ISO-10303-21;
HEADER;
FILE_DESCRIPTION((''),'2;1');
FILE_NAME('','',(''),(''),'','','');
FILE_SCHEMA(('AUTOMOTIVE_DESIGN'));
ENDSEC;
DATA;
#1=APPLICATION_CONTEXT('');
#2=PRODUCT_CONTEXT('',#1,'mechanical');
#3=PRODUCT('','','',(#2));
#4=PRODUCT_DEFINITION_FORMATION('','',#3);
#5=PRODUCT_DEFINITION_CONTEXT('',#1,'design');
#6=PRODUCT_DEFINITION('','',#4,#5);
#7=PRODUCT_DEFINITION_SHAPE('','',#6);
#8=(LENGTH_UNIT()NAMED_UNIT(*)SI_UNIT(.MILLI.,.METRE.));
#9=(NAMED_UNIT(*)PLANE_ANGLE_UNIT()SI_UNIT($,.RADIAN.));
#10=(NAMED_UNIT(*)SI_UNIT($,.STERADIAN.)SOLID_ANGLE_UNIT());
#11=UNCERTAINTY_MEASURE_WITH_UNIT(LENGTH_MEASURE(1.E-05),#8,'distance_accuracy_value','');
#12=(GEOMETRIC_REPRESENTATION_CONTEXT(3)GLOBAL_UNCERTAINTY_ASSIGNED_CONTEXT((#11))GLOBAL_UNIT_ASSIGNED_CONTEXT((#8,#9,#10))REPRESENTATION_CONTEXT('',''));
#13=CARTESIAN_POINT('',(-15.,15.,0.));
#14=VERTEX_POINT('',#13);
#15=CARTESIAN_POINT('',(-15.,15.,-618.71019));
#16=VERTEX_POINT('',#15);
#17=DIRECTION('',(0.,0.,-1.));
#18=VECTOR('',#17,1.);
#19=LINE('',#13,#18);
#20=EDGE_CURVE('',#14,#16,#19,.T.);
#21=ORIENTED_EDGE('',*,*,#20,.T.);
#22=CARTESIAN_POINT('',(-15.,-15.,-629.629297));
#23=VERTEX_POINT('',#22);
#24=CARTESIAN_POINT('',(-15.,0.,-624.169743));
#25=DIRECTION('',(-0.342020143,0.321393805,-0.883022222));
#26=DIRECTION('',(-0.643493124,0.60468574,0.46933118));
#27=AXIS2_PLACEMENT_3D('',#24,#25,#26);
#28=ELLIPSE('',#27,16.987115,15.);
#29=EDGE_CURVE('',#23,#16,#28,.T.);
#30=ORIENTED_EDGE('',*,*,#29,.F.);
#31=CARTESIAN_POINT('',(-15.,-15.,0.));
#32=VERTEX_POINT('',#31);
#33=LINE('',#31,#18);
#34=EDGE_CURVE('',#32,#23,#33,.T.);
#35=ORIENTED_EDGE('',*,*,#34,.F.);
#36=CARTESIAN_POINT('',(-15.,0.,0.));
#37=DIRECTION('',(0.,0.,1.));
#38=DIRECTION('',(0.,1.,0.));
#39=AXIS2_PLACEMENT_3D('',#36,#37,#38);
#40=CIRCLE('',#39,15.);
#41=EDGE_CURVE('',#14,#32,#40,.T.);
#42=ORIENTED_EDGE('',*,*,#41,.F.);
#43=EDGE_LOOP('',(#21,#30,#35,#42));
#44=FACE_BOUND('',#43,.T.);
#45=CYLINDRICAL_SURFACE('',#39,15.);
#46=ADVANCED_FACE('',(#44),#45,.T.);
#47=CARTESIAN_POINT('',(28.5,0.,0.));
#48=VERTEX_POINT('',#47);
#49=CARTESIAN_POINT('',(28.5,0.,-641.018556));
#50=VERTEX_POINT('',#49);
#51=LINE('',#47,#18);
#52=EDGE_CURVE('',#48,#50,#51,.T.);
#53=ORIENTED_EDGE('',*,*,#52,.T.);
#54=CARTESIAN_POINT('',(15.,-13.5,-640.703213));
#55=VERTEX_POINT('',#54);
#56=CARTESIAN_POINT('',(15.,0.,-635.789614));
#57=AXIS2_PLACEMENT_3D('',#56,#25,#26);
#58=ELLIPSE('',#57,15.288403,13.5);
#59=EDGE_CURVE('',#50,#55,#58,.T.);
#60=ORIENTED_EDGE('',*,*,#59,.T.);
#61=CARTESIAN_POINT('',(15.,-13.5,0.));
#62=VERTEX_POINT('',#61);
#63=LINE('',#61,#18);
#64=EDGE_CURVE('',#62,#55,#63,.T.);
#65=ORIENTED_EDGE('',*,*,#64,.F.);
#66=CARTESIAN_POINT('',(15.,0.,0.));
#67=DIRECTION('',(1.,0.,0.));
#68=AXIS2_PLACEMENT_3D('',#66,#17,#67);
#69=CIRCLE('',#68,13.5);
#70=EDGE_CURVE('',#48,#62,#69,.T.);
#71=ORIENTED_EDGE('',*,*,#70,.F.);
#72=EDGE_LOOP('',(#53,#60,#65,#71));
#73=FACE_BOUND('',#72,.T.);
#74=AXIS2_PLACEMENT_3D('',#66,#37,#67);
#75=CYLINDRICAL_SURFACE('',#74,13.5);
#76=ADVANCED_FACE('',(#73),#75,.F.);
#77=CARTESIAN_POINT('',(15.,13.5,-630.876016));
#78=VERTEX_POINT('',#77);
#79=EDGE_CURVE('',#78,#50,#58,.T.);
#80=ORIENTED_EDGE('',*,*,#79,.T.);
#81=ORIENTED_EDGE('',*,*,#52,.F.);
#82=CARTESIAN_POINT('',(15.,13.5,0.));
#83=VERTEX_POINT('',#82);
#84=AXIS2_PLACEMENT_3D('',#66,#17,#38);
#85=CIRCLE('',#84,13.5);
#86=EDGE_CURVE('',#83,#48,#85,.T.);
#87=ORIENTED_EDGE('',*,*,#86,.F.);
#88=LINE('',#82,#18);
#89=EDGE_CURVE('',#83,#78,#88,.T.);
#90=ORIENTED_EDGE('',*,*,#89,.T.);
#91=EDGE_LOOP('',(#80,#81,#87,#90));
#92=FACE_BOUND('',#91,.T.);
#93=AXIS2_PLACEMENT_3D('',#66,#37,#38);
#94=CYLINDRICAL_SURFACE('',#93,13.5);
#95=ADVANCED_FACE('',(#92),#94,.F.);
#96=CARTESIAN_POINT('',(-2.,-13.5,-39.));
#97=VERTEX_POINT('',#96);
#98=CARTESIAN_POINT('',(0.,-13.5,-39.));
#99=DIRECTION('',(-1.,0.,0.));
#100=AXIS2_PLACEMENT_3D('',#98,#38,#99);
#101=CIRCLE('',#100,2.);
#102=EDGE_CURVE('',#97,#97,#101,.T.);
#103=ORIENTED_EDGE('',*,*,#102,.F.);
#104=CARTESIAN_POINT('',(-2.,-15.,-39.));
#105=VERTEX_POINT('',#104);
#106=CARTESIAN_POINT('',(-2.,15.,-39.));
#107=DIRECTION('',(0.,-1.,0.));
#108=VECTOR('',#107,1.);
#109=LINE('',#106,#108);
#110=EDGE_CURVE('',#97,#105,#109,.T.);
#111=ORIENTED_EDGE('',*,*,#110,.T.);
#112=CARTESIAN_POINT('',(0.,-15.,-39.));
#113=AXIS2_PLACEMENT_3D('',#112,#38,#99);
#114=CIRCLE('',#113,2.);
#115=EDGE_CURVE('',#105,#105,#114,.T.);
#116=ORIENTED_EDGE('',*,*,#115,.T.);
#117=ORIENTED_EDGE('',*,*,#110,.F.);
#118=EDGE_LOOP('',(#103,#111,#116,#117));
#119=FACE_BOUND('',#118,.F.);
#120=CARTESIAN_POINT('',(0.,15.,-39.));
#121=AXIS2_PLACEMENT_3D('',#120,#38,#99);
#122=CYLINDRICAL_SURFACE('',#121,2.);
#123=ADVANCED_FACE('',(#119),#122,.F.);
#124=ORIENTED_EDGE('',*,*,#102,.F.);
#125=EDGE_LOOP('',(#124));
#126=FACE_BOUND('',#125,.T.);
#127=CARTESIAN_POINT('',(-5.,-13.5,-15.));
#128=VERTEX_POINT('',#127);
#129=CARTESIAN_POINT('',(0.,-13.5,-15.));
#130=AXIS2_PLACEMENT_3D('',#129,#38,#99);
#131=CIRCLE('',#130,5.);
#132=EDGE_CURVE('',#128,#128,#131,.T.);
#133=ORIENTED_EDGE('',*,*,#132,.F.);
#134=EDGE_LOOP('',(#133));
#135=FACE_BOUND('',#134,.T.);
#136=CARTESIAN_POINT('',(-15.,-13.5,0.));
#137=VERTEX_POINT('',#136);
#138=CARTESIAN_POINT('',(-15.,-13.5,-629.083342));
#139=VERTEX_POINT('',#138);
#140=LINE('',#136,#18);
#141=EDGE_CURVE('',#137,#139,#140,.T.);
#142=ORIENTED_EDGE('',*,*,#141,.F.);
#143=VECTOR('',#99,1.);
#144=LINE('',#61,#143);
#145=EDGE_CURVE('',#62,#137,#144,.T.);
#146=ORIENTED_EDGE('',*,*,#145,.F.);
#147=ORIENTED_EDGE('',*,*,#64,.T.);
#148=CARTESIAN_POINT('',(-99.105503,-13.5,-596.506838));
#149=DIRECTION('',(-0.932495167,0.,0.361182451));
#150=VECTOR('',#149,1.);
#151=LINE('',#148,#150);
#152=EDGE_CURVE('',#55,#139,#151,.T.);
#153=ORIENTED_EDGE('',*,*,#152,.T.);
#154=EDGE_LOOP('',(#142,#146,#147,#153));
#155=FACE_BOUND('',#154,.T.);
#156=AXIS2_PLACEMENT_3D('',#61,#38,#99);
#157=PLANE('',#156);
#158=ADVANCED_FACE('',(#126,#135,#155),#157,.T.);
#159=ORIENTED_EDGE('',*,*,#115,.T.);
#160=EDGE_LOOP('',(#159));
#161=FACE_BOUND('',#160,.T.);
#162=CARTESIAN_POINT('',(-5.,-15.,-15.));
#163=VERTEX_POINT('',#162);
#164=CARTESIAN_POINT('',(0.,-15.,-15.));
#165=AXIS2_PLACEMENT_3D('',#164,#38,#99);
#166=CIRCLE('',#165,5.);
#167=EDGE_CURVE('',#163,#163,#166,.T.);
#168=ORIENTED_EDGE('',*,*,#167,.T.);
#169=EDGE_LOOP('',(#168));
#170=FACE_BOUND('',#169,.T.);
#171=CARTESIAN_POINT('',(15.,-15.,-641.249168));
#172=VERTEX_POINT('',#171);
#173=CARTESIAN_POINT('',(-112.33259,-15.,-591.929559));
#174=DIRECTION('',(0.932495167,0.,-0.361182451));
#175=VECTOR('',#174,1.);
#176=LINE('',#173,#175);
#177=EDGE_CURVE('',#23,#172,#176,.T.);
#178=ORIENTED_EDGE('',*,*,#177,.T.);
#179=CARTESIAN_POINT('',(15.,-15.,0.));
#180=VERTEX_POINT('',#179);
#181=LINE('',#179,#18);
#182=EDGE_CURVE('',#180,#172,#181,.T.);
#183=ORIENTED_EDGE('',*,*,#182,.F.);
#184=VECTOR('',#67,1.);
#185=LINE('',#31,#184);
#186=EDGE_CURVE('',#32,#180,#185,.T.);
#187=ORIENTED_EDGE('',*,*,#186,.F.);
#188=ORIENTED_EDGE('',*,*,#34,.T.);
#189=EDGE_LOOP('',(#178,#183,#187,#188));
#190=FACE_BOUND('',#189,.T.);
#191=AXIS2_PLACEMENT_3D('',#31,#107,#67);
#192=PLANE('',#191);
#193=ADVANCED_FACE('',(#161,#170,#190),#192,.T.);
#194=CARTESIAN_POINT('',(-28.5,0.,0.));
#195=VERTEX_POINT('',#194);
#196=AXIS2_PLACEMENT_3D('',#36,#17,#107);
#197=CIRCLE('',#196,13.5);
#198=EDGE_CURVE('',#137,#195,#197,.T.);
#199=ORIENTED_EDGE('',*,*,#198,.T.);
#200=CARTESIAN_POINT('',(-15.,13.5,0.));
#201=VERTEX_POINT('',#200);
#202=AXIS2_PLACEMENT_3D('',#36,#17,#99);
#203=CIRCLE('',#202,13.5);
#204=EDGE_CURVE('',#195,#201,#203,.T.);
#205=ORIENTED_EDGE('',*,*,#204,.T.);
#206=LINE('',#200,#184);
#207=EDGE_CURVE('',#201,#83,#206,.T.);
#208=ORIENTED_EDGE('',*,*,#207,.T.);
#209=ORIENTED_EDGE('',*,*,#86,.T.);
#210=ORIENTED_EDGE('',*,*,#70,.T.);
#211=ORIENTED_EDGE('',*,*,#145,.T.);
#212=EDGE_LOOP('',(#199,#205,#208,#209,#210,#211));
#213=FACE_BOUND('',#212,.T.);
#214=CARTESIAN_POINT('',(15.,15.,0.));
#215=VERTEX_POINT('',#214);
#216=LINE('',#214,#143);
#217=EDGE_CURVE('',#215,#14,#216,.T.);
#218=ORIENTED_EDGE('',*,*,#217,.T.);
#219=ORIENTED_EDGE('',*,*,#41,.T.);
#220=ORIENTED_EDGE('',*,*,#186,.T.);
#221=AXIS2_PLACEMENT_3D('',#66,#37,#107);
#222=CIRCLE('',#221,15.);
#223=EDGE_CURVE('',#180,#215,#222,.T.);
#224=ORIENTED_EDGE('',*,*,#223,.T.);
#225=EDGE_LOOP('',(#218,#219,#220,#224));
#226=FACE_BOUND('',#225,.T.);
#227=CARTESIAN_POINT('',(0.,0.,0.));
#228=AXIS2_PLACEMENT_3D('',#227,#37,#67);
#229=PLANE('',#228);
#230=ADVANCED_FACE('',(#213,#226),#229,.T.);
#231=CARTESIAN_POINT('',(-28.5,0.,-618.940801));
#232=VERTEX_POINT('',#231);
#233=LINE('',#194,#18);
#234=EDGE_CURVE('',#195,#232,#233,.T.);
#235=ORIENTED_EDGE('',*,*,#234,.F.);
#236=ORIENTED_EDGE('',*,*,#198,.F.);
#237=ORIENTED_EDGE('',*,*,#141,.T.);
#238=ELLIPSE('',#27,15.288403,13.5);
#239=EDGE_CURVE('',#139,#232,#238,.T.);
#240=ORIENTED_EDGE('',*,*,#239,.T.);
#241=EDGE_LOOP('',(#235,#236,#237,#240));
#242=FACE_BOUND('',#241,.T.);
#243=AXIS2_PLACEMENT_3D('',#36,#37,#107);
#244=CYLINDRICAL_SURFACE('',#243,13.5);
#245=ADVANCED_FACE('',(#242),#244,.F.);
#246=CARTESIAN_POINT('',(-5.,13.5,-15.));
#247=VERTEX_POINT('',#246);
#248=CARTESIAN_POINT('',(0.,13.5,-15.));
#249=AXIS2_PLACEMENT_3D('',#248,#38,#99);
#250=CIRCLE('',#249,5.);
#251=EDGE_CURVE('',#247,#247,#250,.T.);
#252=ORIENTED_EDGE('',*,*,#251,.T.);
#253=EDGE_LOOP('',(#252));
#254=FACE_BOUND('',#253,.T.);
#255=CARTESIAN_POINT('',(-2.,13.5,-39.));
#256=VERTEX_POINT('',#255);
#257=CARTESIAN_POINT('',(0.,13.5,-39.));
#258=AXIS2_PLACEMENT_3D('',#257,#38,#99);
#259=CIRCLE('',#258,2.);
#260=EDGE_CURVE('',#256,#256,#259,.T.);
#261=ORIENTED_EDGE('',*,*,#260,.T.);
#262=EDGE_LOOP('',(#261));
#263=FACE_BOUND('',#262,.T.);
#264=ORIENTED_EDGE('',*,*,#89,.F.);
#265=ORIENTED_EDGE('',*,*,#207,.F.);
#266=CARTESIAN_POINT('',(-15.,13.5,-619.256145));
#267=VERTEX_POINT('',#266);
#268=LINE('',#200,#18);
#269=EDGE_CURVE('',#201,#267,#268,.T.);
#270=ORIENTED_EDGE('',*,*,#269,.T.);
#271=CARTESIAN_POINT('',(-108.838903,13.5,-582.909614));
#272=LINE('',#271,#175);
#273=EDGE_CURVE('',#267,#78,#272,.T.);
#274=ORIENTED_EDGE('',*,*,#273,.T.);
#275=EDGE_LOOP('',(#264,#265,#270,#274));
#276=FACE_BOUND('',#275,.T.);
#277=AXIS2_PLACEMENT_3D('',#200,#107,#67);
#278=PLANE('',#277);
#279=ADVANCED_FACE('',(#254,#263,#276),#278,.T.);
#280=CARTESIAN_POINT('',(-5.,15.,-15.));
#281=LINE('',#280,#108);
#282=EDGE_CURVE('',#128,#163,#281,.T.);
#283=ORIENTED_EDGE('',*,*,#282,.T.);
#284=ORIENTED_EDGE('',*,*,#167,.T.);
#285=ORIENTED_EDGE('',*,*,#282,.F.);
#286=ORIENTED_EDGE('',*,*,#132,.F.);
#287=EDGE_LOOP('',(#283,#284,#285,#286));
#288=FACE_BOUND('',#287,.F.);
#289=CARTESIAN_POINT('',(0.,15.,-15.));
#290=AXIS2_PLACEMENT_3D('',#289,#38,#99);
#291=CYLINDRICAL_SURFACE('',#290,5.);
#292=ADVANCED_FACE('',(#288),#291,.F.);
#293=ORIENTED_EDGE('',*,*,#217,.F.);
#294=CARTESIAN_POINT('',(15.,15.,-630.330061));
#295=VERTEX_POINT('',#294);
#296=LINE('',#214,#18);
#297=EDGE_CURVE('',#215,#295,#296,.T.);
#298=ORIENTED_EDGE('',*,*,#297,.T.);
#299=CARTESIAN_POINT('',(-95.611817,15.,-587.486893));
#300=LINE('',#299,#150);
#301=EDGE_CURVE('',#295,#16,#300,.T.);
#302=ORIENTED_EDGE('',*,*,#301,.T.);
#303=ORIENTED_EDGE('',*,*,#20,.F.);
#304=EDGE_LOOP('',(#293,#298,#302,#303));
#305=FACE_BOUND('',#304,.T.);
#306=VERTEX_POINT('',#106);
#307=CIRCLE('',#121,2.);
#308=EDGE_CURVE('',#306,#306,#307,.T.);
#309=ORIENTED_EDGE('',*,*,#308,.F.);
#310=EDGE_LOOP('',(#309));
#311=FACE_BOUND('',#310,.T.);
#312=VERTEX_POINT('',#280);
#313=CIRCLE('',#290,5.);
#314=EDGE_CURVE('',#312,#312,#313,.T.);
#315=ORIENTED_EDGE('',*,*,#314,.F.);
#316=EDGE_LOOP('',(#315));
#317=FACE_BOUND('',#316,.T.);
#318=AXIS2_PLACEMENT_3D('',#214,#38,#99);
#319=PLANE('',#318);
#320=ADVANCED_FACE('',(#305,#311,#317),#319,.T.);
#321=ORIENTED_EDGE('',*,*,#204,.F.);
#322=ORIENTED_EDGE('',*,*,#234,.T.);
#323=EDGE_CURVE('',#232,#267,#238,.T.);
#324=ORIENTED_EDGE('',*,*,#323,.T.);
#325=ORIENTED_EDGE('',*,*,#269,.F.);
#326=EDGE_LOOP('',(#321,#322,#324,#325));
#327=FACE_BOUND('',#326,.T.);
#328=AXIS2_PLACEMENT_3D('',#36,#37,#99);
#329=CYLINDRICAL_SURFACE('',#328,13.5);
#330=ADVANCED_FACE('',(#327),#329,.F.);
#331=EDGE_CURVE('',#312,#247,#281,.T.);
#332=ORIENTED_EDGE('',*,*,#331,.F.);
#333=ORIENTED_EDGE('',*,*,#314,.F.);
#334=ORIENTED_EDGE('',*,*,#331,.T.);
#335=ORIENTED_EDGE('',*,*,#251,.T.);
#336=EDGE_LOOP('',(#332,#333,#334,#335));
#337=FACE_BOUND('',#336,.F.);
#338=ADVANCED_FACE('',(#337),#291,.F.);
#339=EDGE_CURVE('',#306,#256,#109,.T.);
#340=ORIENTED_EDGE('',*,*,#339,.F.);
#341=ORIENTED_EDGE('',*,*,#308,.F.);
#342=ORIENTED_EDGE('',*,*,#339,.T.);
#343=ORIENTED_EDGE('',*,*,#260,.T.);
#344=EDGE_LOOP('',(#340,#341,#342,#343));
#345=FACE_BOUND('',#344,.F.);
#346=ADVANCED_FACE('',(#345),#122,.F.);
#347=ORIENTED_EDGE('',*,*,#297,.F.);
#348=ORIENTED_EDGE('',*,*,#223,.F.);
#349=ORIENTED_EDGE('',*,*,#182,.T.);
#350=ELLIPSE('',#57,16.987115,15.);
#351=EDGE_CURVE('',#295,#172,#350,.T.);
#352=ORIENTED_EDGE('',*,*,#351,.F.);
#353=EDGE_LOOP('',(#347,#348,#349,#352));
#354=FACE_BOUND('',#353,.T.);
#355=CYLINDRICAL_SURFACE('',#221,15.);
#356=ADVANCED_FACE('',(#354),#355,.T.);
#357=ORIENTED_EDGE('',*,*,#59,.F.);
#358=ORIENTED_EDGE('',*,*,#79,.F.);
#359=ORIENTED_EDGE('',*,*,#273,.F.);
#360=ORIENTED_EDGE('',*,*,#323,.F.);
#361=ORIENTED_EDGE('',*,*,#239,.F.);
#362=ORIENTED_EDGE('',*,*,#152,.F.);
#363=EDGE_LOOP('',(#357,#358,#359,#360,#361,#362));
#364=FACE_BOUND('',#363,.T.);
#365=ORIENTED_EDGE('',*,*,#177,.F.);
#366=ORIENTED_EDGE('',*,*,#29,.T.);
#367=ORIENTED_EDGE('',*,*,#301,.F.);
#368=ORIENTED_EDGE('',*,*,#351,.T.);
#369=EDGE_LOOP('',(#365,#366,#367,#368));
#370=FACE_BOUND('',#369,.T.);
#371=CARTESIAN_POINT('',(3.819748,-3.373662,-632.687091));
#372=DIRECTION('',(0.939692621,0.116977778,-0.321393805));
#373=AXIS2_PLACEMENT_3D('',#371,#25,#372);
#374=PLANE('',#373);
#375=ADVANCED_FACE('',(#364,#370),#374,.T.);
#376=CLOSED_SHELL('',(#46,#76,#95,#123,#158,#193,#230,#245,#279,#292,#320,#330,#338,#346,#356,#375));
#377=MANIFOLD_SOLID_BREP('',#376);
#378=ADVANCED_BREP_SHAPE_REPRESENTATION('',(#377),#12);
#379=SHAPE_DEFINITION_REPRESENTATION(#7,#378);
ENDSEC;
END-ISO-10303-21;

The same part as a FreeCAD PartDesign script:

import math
import FreeCAD as App
import Part
import Sketcher

V = App.Vector
Q = App.Units.Quantity


def add_polygon(sketch, points):
    """Adds a closed chain of lines whose ends are joined by coincident constraints."""
    first, n = sketch.GeometryCount, len(points)
    for a, b in zip(points, points[1:] + points[:1]):
        sketch.addGeometry(Part.LineSegment(App.Vector(*a, 0), App.Vector(*b, 0)), False)
    for i in range(n):
        sketch.addConstraint(Sketcher.Constraint("Coincident", first + i, 2, first + (i + 1) % n, 1))

doc = App.newDocument("Part")
body = doc.addObject("PartDesign::Body", "Body")

# Sketch on XY plane
sketch1 = body.newObject("Sketcher::SketchObject", "Sketch")
sketch1.AttachmentSupport = (doc.getObject("XY_Plane"), [""])
sketch1.MapMode = "FlatFace"
sketch1.addGeometry([
    Part.LineSegment(V(15, 15, 0), V(-15, 15, 0)),  # 0
    Part.ArcOfCircle(Part.Circle(V(-15, 0, 0), V(0, 0, 1), 15), math.radians(90), math.radians(270)),  # 1
    Part.LineSegment(V(-15, -15, 0), V(15, -15, 0)),  # 2
    Part.ArcOfCircle(Part.Circle(V(15, 0, 0), V(0, 0, 1), 15), math.radians(-90), math.radians(90)),  # 3
    Part.ArcOfCircle(Part.Circle(V(-15, 0, 0), V(0, 0, 1), 14), math.radians(180), math.radians(270)),  # 4
    Part.ArcOfCircle(Part.Circle(V(-15, 0, 0), V(0, 0, 1), 14), math.radians(90), math.radians(180)),  # 5
    Part.LineSegment(V(-15, 14, 0), V(15, 14, 0)),  # 6
    Part.ArcOfCircle(Part.Circle(V(15, 0, 0), V(0, 0, 1), 14), math.radians(0), math.radians(90)),  # 7
    Part.ArcOfCircle(Part.Circle(V(15, 0, 0), V(0, 0, 1), 14), math.radians(-90), math.radians(0)),  # 8
    Part.LineSegment(V(15, -14, 0), V(-15, -14, 0)),  # 9
], False)
sketch1.addConstraint([
    Sketcher.Constraint("Tangent", 0, 2, 1, 1),
    Sketcher.Constraint("Tangent", 1, 2, 2, 1),
    Sketcher.Constraint("Tangent", 2, 2, 3, 1),
    Sketcher.Constraint("Tangent", 3, 2, 0, 1),
    Sketcher.Constraint("Tangent", 4, 1, 5, 2),
    Sketcher.Constraint("Tangent", 5, 1, 6, 1),
    Sketcher.Constraint("Tangent", 6, 2, 7, 2),
    Sketcher.Constraint("Tangent", 7, 1, 8, 2),
    Sketcher.Constraint("Tangent", 8, 1, 9, 1),
    Sketcher.Constraint("Tangent", 9, 2, 4, 2),
    Sketcher.Constraint("Horizontal", 0),
    Sketcher.Constraint("Horizontal", 2),
    Sketcher.Constraint("Horizontal", 6),
    Sketcher.Constraint("Horizontal", 9),
    Sketcher.Constraint("Coincident", 4, 3, 1, 3),
    Sketcher.Constraint("Coincident", 7, 3, 3, 3),
    Sketcher.Constraint("Equal", 4, 5),
    Sketcher.Constraint("Symmetric", 1, 3, 3, 3, -1, 1),
    Sketcher.Constraint("PointOnObject", 4, 1, -1),
    Sketcher.Constraint("PointOnObject", 7, 1, -1),
    Sketcher.Constraint("Radius", 1, Q("15 mm")),
    Sketcher.Constraint("Radius", 4, Q("13.5 mm")),
    Sketcher.Constraint("DistanceX", 0, 2, 0, 1, Q("30 mm")),
])
pad1 = body.newObject("PartDesign::Pad", "Pad")
pad1.Profile = sketch1
pad1.Length = 644
pad1.Reversed = True

# Sketch on XZ plane
sketch2 = body.newObject("Sketcher::SketchObject", "Sketch001")
sketch2.AttachmentSupport = (doc.getObject("XZ_Plane"), [""])
sketch2.MapMode = "FlatFace"
sketch2.AttachmentOffset = App.Placement(V(0, 0, -15), App.Rotation())
sketch2.addGeometry([
    Part.Circle(V(0, -15, 0), V(0, 0, 1), 5),
    Part.Circle(V(0, -39, 0), V(0, 0, 1), 2),
], False)
sketch2.addConstraint([
    Sketcher.Constraint("PointOnObject", 0, 3, -2),
    Sketcher.Constraint("PointOnObject", 1, 3, -2),
    Sketcher.Constraint("Diameter", 0, Q("10 mm")),
    Sketcher.Constraint("Diameter", 1, Q("4 mm")),
    Sketcher.Constraint("DistanceY", 0, 3, -1, 1, Q("15 mm")),
    Sketcher.Constraint("DistanceY", 1, 3, -1, 1, Q("39 mm")),
])
pocket1 = body.newObject("PartDesign::Pocket", "Pocket")
pocket1.Profile = sketch2
pocket1.Length = 40
pocket1.Reversed = True

# Sketch on an angled plane
sketch3 = body.newObject("Sketcher::SketchObject", "Sketch002")
sketch3.Placement = App.Placement(V(-194.023258, 182.322224, -500.926193), App.Rotation(V(0.939692621, 0.116977778, -0.321393805), V(0, -0.939692621, -0.342020143), V(-0.342020143, 0.321393805, -0.883022222), "ZXY"))
add_polygon(sketch3, [(159, 261), (159, 178), (254, 178), (254, 261)])  # lines 0-3
sketch3.addConstraint([
    Sketcher.Constraint("Vertical", 0),
    Sketcher.Constraint("Horizontal", 1),
    Sketcher.Constraint("Vertical", 2),
    Sketcher.Constraint("Horizontal", 3),
    Sketcher.Constraint("DistanceX", 1, 1, 1, 2, Q("94.91837 mm")),
    Sketcher.Constraint("DistanceY", 0, 2, 0, 1, Q("83.348572 mm")),
    Sketcher.Constraint("DistanceX", -1, 1, 0, 2, Q("159.077272 mm")),
    Sketcher.Constraint("DistanceY", -1, 1, 0, 2, Q("177.887649 mm")),
])
pocket2 = body.newObject("PartDesign::Pocket", "Pocket001")
pocket2.Profile = sketch3
pocket2.Type = "TwoLengths"
pocket2.Length = 11
pocket2.Length2 = 25

doc.recompute()
